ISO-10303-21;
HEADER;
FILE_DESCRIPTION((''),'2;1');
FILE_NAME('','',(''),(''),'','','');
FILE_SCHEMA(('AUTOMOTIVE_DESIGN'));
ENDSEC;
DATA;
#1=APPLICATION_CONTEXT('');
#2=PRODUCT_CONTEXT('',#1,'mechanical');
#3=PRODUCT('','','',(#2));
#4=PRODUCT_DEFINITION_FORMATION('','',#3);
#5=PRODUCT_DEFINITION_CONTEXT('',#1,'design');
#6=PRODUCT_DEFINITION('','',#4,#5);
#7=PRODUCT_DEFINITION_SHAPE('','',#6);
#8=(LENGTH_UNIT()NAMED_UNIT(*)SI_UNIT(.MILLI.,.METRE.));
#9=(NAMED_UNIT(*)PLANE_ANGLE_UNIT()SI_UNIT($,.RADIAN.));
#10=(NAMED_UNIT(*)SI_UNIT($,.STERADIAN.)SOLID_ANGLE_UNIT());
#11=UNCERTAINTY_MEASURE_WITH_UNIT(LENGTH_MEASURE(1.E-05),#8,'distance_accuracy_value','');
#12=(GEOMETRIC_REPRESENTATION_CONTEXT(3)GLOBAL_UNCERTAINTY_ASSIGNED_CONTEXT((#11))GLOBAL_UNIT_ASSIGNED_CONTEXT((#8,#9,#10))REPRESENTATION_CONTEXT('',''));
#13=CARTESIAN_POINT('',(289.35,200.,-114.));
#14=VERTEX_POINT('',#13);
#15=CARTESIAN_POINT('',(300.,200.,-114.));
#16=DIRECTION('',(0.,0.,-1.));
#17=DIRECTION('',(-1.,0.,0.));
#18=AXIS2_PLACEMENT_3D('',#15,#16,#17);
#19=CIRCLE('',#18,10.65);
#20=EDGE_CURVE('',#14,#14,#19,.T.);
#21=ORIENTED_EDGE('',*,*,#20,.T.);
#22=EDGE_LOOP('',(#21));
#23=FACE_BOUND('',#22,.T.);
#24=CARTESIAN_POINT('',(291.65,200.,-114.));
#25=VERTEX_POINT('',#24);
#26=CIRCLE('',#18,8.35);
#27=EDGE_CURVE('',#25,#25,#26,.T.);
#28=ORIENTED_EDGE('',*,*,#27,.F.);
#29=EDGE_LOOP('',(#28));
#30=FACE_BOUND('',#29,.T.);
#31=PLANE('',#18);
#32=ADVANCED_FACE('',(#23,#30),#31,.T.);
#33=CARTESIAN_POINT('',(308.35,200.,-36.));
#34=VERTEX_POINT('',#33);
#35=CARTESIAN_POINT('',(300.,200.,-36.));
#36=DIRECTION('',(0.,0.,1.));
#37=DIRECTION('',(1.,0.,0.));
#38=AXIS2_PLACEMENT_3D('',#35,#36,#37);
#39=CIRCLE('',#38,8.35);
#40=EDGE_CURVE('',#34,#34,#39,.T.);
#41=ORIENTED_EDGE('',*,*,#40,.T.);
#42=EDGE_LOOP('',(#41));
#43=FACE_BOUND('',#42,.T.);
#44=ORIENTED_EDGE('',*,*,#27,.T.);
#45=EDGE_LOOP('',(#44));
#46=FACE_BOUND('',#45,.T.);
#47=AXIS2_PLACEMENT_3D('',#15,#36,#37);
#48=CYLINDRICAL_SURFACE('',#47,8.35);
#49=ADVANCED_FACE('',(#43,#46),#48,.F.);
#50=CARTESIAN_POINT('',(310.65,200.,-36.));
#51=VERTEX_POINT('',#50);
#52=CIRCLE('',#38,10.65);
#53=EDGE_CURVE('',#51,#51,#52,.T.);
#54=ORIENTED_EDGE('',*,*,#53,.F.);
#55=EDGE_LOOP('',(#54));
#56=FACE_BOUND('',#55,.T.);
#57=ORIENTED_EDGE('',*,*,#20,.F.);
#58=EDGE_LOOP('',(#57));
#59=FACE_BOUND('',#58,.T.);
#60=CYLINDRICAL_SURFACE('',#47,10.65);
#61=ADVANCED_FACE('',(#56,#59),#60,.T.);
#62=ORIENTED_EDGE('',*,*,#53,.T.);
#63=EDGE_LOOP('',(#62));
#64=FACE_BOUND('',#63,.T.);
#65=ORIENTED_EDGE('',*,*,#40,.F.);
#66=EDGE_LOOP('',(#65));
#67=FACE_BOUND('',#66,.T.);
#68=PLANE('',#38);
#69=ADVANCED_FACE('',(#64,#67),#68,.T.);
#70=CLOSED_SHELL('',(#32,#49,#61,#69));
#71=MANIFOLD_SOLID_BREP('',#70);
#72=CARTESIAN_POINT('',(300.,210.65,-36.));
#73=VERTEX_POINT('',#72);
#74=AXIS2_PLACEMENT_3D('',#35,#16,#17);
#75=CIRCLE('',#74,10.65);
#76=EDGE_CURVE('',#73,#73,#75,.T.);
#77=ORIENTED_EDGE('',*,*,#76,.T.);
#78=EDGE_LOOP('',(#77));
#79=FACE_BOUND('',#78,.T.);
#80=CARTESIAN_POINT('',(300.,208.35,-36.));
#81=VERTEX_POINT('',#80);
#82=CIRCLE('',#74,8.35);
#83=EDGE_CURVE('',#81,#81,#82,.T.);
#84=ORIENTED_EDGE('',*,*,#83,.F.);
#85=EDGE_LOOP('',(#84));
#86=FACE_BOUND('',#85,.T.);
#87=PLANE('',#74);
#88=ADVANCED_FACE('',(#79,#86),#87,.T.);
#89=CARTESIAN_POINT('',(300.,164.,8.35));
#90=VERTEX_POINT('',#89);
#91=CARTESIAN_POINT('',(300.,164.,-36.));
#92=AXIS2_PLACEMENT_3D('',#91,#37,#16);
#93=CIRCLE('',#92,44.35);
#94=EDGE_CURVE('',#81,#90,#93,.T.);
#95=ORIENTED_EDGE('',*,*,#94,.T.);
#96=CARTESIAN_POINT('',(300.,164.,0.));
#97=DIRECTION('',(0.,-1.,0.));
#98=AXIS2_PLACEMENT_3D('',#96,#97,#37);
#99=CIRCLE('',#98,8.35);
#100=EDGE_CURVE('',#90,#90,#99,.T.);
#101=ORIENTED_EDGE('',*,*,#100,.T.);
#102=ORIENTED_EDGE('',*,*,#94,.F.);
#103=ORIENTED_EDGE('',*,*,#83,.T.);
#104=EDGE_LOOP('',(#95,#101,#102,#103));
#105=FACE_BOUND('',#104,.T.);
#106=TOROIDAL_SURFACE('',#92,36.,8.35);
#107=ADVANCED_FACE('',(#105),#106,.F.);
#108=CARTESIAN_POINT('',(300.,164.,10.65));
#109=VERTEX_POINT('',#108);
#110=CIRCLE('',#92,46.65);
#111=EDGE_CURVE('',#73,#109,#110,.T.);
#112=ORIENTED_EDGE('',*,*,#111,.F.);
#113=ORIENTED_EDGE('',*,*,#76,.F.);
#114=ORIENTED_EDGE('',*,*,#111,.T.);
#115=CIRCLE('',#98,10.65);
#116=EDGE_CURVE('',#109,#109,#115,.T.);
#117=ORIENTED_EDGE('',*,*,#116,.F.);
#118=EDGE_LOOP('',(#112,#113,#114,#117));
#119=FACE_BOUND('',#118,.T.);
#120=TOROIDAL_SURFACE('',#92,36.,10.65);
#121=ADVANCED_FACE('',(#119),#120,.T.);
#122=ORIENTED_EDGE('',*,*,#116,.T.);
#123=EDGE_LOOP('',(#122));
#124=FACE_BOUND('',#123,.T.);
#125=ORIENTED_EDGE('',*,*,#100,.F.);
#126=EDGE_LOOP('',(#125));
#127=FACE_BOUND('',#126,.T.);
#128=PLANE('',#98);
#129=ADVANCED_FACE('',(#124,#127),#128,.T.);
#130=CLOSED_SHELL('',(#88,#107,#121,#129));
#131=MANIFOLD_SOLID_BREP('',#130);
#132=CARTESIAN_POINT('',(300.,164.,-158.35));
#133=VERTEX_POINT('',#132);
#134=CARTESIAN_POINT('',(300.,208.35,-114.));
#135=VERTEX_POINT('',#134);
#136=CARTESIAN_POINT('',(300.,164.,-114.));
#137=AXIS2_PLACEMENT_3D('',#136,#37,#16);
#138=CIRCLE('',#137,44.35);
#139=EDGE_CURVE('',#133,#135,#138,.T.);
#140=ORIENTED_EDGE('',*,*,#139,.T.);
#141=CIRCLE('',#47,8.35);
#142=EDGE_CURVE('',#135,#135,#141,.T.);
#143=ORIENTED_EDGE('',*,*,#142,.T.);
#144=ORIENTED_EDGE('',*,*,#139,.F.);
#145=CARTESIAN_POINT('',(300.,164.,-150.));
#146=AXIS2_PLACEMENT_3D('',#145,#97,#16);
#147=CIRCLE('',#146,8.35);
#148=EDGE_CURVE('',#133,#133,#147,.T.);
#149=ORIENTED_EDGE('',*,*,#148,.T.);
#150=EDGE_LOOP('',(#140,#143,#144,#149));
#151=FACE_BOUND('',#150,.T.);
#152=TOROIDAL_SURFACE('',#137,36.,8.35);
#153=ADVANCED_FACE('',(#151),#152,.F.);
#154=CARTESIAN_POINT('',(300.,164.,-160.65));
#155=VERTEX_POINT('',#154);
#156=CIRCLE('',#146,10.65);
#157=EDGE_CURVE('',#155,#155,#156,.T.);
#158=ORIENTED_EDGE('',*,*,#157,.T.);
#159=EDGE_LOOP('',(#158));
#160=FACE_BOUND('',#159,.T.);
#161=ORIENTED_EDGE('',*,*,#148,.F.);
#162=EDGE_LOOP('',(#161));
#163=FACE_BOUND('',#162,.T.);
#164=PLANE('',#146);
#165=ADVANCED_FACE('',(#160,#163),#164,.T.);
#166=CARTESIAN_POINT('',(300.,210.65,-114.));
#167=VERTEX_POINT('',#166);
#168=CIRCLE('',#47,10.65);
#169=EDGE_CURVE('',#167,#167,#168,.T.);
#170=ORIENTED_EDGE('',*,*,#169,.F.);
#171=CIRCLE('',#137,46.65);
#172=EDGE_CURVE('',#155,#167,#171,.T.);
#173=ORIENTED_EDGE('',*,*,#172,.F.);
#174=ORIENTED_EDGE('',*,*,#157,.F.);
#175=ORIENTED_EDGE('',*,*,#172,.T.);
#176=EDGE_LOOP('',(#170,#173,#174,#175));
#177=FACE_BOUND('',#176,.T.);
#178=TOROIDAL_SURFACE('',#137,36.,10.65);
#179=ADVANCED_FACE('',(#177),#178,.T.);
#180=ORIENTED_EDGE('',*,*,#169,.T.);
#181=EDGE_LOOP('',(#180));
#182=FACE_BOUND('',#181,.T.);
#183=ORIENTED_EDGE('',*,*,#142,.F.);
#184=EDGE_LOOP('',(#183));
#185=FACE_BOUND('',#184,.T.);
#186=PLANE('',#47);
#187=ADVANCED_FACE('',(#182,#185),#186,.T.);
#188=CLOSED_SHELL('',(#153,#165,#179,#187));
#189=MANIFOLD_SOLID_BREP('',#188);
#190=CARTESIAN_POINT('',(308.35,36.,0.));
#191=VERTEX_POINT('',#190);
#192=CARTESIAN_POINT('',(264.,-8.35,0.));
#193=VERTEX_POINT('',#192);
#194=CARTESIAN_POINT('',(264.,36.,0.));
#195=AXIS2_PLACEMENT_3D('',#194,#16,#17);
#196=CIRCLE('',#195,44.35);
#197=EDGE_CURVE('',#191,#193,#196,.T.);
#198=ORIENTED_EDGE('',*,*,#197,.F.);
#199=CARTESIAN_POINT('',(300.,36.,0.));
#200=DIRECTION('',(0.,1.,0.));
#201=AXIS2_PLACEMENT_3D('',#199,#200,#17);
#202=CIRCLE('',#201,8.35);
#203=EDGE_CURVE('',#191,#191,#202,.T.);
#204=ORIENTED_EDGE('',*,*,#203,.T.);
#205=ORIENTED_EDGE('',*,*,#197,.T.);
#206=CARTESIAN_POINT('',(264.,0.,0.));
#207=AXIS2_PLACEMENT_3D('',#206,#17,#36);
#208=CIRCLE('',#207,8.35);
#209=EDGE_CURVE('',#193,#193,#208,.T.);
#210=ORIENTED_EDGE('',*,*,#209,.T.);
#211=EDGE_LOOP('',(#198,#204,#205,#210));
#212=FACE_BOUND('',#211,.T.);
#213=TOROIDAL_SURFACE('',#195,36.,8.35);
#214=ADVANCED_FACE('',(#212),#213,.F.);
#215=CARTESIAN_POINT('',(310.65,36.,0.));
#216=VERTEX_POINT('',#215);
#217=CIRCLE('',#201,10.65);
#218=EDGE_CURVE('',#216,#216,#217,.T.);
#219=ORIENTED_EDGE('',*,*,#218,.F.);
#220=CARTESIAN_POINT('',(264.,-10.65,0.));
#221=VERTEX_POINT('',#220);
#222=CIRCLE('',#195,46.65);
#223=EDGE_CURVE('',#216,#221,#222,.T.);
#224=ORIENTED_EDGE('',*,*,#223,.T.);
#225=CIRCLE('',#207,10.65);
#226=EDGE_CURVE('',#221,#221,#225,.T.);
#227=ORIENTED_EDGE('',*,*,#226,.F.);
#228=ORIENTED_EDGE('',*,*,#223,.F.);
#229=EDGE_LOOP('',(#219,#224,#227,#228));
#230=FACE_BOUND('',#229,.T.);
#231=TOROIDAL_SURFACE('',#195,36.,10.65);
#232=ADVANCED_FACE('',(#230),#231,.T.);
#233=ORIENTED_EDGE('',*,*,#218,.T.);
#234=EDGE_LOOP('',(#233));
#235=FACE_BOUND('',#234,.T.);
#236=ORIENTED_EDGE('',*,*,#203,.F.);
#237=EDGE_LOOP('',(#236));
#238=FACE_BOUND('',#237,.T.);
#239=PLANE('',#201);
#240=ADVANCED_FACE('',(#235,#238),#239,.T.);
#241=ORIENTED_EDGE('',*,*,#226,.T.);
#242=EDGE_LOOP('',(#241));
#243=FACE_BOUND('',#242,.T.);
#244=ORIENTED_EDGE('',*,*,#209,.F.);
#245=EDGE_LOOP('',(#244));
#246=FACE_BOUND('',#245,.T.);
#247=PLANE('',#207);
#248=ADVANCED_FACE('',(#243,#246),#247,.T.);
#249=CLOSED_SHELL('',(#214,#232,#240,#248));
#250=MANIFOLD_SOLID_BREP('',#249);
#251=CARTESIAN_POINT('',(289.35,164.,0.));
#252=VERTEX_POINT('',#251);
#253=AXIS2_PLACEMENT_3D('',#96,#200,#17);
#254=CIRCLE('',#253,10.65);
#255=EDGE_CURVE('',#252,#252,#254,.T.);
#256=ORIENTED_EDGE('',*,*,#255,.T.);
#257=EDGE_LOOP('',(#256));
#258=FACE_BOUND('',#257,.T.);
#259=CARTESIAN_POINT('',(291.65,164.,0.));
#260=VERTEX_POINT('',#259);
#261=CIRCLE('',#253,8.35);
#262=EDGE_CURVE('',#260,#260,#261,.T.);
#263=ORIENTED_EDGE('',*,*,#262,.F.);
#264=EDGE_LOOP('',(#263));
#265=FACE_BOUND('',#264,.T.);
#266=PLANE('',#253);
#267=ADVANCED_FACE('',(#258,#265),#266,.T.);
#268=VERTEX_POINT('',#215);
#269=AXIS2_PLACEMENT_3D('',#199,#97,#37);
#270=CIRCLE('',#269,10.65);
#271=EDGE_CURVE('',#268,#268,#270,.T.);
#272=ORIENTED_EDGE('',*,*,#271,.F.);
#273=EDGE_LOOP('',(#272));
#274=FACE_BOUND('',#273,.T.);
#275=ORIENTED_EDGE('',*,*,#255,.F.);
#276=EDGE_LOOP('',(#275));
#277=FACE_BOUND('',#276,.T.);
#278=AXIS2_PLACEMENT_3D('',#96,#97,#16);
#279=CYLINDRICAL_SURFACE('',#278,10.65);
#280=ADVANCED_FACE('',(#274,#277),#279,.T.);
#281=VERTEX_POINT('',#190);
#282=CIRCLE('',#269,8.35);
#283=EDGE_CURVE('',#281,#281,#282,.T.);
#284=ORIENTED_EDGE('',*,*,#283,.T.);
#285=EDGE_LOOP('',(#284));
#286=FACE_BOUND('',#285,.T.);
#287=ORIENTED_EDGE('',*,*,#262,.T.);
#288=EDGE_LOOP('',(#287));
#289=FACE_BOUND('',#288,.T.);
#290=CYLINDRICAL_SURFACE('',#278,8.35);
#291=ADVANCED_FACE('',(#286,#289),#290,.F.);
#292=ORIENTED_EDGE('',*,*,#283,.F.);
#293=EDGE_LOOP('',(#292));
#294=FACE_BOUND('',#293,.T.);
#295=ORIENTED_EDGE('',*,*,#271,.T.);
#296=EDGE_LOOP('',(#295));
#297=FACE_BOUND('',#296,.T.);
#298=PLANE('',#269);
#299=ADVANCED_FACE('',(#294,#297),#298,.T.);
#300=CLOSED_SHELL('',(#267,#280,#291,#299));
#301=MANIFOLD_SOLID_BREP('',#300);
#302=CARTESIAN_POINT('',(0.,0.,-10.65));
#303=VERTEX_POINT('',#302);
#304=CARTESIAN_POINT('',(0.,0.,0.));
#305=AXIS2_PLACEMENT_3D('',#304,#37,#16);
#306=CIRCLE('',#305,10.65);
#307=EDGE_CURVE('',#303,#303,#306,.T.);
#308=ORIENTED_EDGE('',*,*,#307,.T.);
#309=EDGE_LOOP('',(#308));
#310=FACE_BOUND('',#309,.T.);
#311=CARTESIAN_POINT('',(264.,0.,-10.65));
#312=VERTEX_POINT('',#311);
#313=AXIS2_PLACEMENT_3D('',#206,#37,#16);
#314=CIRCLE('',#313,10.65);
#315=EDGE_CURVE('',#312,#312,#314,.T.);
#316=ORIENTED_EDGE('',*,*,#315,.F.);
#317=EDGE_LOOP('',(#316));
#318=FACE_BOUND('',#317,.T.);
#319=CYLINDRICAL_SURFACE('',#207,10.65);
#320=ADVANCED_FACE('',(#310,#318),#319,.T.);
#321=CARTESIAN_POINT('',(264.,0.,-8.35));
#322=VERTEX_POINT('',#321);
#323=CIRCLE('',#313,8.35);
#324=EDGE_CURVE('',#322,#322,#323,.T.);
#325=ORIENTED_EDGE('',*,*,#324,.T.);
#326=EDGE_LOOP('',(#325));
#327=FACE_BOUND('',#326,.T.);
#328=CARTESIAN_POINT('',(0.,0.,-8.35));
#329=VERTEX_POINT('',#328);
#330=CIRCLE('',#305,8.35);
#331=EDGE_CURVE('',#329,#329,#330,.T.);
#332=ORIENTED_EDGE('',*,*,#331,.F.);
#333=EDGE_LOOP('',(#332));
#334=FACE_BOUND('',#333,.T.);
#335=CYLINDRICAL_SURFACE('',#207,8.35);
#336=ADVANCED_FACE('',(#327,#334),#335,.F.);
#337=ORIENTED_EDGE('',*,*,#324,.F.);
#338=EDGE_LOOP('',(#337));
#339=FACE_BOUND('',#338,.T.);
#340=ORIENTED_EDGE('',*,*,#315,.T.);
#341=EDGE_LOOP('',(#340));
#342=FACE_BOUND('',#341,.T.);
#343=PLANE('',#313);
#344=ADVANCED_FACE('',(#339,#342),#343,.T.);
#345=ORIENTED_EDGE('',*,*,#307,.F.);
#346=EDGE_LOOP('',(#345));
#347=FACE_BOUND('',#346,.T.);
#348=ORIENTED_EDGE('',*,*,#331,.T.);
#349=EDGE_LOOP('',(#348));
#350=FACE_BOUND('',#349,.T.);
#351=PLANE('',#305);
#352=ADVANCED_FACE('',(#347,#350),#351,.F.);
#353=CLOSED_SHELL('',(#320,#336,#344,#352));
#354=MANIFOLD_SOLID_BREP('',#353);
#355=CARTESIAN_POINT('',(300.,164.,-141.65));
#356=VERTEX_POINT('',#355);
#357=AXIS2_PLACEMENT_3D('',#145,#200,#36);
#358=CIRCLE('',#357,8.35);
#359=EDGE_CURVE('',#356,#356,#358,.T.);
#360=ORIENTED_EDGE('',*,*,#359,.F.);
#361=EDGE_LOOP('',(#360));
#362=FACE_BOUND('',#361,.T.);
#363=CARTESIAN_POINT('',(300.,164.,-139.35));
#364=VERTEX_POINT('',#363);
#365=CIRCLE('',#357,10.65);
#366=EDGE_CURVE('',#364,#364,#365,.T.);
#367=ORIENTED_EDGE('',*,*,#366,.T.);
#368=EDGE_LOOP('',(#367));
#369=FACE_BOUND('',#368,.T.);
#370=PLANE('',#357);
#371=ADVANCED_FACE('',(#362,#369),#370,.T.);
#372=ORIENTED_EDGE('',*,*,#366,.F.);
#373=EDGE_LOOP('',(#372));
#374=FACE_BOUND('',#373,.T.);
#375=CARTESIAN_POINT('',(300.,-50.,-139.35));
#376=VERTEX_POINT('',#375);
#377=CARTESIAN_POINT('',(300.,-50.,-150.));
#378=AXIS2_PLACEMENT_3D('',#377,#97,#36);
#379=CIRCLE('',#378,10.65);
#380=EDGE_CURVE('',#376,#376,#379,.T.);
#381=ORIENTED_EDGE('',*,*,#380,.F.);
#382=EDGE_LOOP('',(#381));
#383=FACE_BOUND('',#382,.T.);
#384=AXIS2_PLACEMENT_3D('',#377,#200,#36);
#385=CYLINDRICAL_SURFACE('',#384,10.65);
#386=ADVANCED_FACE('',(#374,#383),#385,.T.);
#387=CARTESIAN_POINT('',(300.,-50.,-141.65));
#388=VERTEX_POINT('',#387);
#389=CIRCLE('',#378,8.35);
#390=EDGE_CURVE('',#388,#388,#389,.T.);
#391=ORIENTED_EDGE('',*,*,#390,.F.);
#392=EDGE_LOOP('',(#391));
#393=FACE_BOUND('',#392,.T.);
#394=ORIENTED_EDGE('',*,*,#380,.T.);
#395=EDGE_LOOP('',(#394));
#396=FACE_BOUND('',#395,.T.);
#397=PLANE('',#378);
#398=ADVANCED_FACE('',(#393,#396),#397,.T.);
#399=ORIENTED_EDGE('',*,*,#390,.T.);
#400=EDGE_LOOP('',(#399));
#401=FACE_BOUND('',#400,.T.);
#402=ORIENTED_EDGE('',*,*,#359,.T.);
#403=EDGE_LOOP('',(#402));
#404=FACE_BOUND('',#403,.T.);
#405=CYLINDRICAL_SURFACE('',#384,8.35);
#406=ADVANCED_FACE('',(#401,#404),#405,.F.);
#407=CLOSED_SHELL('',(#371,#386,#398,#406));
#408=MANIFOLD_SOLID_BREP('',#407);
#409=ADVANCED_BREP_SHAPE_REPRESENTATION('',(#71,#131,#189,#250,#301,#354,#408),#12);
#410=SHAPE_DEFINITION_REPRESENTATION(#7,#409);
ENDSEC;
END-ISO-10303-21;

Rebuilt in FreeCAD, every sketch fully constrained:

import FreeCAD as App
import Part
import Sketcher

V = App.Vector

doc = App.newDocument("Part")
body = doc.addObject("PartDesign::Body", "Body")

sketch1 = body.newObject("Sketcher::SketchObject", "Sketch")
sketch1.AttachmentSupport = (doc.getObject("YZ_Plane"), [""])
sketch1.MapMode = "FlatFace"
sketch1.addGeometry([
    Part.Circle(V(0, 0, 0), V(0, 0, 1), 11),
    Part.Circle(V(0, 0, 0), V(0, 0, 1), 8),
], False)
sketch1.addConstraint([
    Sketcher.Constraint("Coincident", 0, 3, -1, 1),
    Sketcher.Constraint("Coincident", 1, 3, -1, 1),
    Sketcher.Constraint("Diameter", 0, 21.3),
    Sketcher.Constraint("Diameter", 1, 16.7),
])
pad1 = body.newObject("PartDesign::Pad", "Pad")
pad1.Profile = sketch1
pad1.Length = 264
body2 = doc.addObject("PartDesign::Body", "Body001")

sketch2 = body2.newObject("Sketcher::SketchObject", "Sketch001")
sketch2.AttachmentSupport = (doc.getObject("YZ_Plane001"), [""])
sketch2.MapMode = "FlatFace"
sketch2.AttachmentOffset = App.Placement(V(0, 0, 264), App.Rotation())
sketch2.addGeometry([
    Part.Circle(V(0, 0, 0), V(0, 0, 1), 11),
    Part.Circle(V(0, 0, 0), V(0, 0, 1), 8),
], False)
sketch2.addGeometry(Part.LineSegment(V(36, 0, 0), V(36, 10, 0)), True)
sketch2.addConstraint([
    Sketcher.Constraint("Vertical", 2),
    Sketcher.Constraint("Coincident", 0, 3, -1, 1),
    Sketcher.Constraint("Coincident", 1, 3, -1, 1),
    Sketcher.Constraint("PointOnObject", 2, 1, -1),
    Sketcher.Constraint("Diameter", 0, 21.3),
    Sketcher.Constraint("Diameter", 1, 16.7),
    Sketcher.Constraint("DistanceY", 2, 1, 2, 2, 10.0),
    Sketcher.Constraint("DistanceX", -1, 1, 2, 1, 36.0),
])
revolution = body2.newObject("PartDesign::Revolution", "Revolution")
revolution.Profile = sketch2
revolution.ReferenceAxis = (sketch2, ["Axis0"])
revolution.Angle = 90
body3 = doc.addObject("PartDesign::Body", "Body002")

sketch3 = body3.newObject("Sketcher::SketchObject", "Sketch002")
sketch3.AttachmentSupport = (doc.getObject("XZ_Plane002"), [""])
sketch3.MapMode = "FlatFace"
sketch3.AttachmentOffset = App.Placement(V(0, 0, -36), App.Rotation())
sketch3.addGeometry([
    Part.Circle(V(300, 0, 0), V(0, 0, 1), 11),
    Part.Circle(V(300, 0, 0), V(0, 0, 1), 8),
], False)
sketch3.addConstraint([
    Sketcher.Constraint("Coincident", 1, 3, 0, 3),
    Sketcher.Constraint("PointOnObject", 0, 3, -1),
    Sketcher.Constraint("Diameter", 0, 21.3),
    Sketcher.Constraint("Diameter", 1, 16.7),
    Sketcher.Constraint("DistanceX", -1, 1, 0, 3, 300.0),
])
pad2 = body3.newObject("PartDesign::Pad", "Pad001")
pad2.Profile = sketch3
pad2.Length = 128
pad2.Reversed = True
body4 = doc.addObject("PartDesign::Body", "Body003")

sketch4 = body4.newObject("Sketcher::SketchObject", "Sketch003")
sketch4.AttachmentSupport = (doc.getObject("XZ_Plane003"), [""])
sketch4.MapMode = "FlatFace"
sketch4.AttachmentOffset = App.Placement(V(0, 0, -164), App.Rotation())
sketch4.addGeometry([
    Part.Circle(V(300, 0, 0), V(0, 0, 1), 11),
    Part.Circle(V(300, 0, 0), V(0, 0, 1), 8),
], False)
sketch4.addGeometry(Part.LineSegment(V(300, -36, 0), V(290, -36, 0)), True)
sketch4.addConstraint([
    Sketcher.Constraint("Horizontal", 2),
    Sketcher.Constraint("Coincident", 1, 3, 0, 3),
    Sketcher.Constraint("PointOnObject", 0, 3, -1),
    Sketcher.Constraint("Vertical", 1, 3, 2, 1),
    Sketcher.Constraint("Diameter", 0, 21.3),
    Sketcher.Constraint("Diameter", 1, 16.7),
    Sketcher.Constraint("DistanceX", 2, 2, 2, 1, 10.0),
    Sketcher.Constraint("DistanceX", -1, 1, 0, 3, 300.0),
    Sketcher.Constraint("DistanceY", 2, 1, -1, 1, 36.0),
])
revolution2 = body4.newObject("PartDesign::Revolution", "Revolution001")
revolution2.Profile = sketch4
revolution2.ReferenceAxis = (sketch4, ["Axis0"])
revolution2.Angle = 90
body5 = doc.addObject("PartDesign::Body", "Body004")

sketch5 = body5.newObject("Sketcher::SketchObject", "Sketch004")
sketch5.AttachmentSupport = (doc.getObject("XY_Plane004"), [""])
sketch5.MapMode = "FlatFace"
sketch5.AttachmentOffset = App.Placement(V(0, 0, -36), App.Rotation())
sketch5.addGeometry([
    Part.Circle(V(300, 200, 0), V(0, 0, 1), 11),
    Part.Circle(V(300, 200, 0), V(0, 0, 1), 8),
], False)
sketch5.addConstraint([
    Sketcher.Constraint("Coincident", 1, 3, 0, 3),
    Sketcher.Constraint("Diameter", 0, 21.3),
    Sketcher.Constraint("Diameter", 1, 16.7),
    Sketcher.Constraint("DistanceX", -1, 1, 0, 3, 300.0),
    Sketcher.Constraint("DistanceY", -1, 1, 0, 3, 200.0),
])
pad3 = body5.newObject("PartDesign::Pad", "Pad002")
pad3.Profile = sketch5
pad3.Length = 78
pad3.Reversed = True
body6 = doc.addObject("PartDesign::Body", "Body005")

sketch6 = body6.newObject("Sketcher::SketchObject", "Sketch005")
sketch6.AttachmentSupport = (doc.getObject("XY_Plane005"), [""])
sketch6.MapMode = "FlatFace"
sketch6.AttachmentOffset = App.Placement(V(0, 0, -114), App.Rotation())
sketch6.addGeometry([
    Part.Circle(V(300, 200, 0), V(0, 0, 1), 11),
    Part.Circle(V(300, 200, 0), V(0, 0, 1), 8),
], False)
sketch6.addGeometry(Part.LineSegment(V(300, 164, 0), V(290, 164, 0)), True)
sketch6.addConstraint([
    Sketcher.Constraint("Horizontal", 2),
    Sketcher.Constraint("Coincident", 1, 3, 0, 3),
    Sketcher.Constraint("Vertical", 1, 3, 2, 1),
    Sketcher.Constraint("Diameter", 0, 21.3),
    Sketcher.Constraint("Diameter", 1, 16.7),
    Sketcher.Constraint("DistanceX", 2, 2, 2, 1, 10.0),
    Sketcher.Constraint("DistanceX", -1, 1, 0, 3, 300.0),
    Sketcher.Constraint("DistanceY", -1, 1, 0, 3, 200.0),
    Sketcher.Constraint("DistanceY", -1, 1, 2, 1, 164.0),
])
revolution3 = body6.newObject("PartDesign::Revolution", "Revolution002")
revolution3.Profile = sketch6
revolution3.ReferenceAxis = (sketch6, ["Axis0"])
revolution3.Angle = 90
body7 = doc.addObject("PartDesign::Body", "Body006")

sketch7 = body7.newObject("Sketcher::SketchObject", "Sketch006")
sketch7.AttachmentSupport = (doc.getObject("XZ_Plane006"), [""])
sketch7.MapMode = "FlatFace"
sketch7.AttachmentOffset = App.Placement(V(0, 0, -164), App.Rotation())
sketch7.addGeometry([
    Part.Circle(V(300, -150, 0), V(0, 0, 1), 11),
    Part.Circle(V(300, -150, 0), V(0, 0, 1), 8),
], False)
sketch7.addConstraint([
    Sketcher.Constraint("Coincident", 1, 3, 0, 3),
    Sketcher.Constraint("Diameter", 0, 21.3),
    Sketcher.Constraint("Diameter", 1, 16.7),
    Sketcher.Constraint("DistanceX", -1, 1, 0, 3, 300.0),
    Sketcher.Constraint("DistanceY", 0, 3, -1, 1, 150.0),
])
pad4 = body7.newObject("PartDesign::Pad", "Pad003")
pad4.Profile = sketch7
pad4.Length = 214

doc.recompute()
